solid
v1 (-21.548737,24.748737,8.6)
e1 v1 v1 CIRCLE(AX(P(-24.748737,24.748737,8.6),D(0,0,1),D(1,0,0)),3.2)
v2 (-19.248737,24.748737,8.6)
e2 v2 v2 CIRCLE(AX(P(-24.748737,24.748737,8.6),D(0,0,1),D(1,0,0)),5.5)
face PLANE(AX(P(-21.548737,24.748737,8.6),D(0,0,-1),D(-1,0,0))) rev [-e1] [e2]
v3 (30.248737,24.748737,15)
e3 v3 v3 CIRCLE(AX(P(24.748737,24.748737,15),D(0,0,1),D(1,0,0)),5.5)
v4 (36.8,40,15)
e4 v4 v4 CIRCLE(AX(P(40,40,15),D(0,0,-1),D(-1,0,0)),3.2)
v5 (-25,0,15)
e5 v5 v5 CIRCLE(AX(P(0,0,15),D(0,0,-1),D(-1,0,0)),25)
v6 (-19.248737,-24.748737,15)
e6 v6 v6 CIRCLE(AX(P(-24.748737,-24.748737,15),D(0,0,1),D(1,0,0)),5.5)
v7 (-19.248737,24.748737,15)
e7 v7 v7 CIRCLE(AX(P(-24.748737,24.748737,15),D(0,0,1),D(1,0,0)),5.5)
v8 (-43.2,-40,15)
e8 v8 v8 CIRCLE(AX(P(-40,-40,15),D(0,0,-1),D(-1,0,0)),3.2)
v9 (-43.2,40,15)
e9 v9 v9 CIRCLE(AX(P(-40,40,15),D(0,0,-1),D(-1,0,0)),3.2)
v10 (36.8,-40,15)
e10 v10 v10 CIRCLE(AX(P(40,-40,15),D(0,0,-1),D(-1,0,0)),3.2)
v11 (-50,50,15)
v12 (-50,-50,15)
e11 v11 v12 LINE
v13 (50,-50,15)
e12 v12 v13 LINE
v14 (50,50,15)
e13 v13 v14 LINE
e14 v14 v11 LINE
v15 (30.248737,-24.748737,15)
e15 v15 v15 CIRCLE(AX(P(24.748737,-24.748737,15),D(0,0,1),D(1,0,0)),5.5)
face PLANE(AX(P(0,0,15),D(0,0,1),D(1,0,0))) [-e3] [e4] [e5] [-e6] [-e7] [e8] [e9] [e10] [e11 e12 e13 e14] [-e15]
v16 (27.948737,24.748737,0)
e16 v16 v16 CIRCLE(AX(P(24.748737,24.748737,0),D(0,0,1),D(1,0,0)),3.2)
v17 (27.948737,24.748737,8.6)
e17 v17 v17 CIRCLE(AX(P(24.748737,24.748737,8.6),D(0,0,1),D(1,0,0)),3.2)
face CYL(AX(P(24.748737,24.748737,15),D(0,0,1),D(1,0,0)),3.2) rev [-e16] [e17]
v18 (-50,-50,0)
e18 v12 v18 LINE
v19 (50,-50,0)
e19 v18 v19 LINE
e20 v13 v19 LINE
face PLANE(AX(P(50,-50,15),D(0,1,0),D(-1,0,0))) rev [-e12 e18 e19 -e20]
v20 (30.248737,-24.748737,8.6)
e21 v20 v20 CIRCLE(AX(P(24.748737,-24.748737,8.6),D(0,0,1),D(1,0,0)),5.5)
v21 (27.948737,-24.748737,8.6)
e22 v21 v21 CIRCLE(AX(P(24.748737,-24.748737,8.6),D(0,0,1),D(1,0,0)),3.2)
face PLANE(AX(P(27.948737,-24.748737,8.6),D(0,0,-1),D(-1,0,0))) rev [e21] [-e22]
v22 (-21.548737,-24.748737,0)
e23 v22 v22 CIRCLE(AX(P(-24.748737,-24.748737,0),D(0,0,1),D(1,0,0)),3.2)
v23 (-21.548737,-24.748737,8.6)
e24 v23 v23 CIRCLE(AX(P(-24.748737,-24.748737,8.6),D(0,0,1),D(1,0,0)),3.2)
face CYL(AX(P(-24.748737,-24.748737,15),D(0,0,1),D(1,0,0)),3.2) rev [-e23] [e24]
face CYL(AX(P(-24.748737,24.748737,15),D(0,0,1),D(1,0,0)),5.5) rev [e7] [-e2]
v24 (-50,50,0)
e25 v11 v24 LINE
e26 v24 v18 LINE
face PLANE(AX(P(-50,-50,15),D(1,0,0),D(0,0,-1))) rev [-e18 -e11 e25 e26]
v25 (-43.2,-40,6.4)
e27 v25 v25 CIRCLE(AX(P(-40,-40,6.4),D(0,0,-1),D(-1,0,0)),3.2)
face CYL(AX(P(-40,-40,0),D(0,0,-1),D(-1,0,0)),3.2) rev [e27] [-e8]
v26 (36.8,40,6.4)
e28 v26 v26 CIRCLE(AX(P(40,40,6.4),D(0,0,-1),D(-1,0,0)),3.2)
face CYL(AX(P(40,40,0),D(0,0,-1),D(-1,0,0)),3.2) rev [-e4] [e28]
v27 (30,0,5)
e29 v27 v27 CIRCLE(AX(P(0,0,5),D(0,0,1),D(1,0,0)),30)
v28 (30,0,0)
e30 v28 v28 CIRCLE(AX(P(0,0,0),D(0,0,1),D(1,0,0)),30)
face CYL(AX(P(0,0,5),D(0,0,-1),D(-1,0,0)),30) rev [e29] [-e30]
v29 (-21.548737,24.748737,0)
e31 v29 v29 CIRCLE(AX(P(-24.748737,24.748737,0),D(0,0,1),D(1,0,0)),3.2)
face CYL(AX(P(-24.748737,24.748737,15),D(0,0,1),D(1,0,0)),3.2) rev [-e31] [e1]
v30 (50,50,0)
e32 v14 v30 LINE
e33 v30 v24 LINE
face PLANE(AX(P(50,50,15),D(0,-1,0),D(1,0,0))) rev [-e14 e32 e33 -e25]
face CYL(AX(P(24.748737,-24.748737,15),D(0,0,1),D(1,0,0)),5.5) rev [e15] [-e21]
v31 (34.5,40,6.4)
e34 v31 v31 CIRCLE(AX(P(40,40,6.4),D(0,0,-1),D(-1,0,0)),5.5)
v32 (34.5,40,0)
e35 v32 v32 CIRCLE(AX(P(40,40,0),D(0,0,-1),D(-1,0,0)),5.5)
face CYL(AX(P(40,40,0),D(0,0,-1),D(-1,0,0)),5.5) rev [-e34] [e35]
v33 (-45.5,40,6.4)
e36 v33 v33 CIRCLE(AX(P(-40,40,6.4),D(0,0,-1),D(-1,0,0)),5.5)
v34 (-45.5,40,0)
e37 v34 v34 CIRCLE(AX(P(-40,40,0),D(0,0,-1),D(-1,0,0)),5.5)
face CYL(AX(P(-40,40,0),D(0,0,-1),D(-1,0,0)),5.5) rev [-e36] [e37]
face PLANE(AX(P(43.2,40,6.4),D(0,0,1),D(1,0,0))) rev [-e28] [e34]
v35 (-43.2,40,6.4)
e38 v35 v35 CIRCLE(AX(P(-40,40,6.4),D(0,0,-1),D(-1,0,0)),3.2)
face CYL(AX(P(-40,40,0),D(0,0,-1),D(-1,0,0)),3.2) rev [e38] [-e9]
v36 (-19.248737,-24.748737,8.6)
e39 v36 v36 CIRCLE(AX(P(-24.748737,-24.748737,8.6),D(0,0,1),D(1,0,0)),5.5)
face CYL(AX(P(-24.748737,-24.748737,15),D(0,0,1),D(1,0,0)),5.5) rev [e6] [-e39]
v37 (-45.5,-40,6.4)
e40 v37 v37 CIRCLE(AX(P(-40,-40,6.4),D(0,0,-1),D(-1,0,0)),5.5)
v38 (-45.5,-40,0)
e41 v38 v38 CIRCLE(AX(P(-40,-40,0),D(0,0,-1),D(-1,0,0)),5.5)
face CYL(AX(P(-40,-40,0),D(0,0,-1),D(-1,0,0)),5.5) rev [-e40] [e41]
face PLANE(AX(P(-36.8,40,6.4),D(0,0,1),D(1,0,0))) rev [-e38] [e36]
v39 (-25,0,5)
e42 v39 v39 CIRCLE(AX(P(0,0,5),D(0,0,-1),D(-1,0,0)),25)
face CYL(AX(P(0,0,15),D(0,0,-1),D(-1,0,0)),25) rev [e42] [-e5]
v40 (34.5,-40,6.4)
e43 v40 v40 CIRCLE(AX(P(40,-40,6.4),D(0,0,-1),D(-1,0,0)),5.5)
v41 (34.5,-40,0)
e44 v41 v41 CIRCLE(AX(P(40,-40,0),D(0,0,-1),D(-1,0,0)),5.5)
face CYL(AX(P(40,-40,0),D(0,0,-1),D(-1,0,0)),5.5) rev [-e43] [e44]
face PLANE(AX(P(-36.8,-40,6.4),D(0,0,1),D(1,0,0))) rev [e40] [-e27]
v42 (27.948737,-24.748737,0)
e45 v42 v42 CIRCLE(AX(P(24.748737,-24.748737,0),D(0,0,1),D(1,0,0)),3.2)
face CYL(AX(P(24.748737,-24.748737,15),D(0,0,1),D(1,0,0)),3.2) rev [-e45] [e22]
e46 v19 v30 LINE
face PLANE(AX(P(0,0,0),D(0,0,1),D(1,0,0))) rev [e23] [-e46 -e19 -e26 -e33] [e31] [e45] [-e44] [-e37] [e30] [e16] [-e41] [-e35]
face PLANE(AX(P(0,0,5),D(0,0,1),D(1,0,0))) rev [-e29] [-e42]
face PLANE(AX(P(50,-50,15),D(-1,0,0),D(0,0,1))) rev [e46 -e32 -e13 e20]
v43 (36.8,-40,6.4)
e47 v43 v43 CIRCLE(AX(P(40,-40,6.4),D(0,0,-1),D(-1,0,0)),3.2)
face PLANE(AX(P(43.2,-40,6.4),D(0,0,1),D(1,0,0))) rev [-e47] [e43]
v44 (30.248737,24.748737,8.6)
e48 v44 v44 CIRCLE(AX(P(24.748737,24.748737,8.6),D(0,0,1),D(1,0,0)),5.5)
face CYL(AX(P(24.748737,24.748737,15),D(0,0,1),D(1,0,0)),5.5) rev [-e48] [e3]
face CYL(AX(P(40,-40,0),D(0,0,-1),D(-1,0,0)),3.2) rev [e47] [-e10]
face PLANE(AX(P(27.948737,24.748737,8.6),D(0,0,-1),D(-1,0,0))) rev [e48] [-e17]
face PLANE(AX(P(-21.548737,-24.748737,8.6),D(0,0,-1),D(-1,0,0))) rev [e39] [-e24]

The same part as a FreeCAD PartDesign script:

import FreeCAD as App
import Part
import Sketcher

V = App.Vector
Q = App.Units.Quantity

doc = App.newDocument("Part")
body = doc.addObject("PartDesign::Body", "Body")

# Sketch on XY plane
sketch1 = body.newObject("Sketcher::SketchObject", "Sketch")
sketch1.AttachmentSupport = (doc.getObject("XY_Plane"), [""])
sketch1.MapMode = "FlatFace"
sketch1.addGeometry([
    Part.LineSegment(V(-50, 50, 0), V(-50, -50, 0)),
    Part.LineSegment(V(-50, -50, 0), V(50, -50, 0)),
    Part.LineSegment(V(50, -50, 0), V(50, 50, 0)),
    Part.LineSegment(V(50, 50, 0), V(-50, 50, 0)),
], False)
sketch1.addConstraint([
    Sketcher.Constraint("Coincident", 0, 2, 1, 1),
    Sketcher.Constraint("Coincident", 1, 2, 2, 1),
    Sketcher.Constraint("Coincident", 2, 2, 3, 1),
    Sketcher.Constraint("Coincident", 3, 2, 0, 1),
    Sketcher.Constraint("Vertical", 0),
    Sketcher.Constraint("Horizontal", 1),
    Sketcher.Constraint("Vertical", 2),
    Sketcher.Constraint("Horizontal", 3),
    Sketcher.Constraint("Symmetric", 0, 2, 2, 2, -1, 1),
    Sketcher.Constraint("Equal", 3, 0),
    Sketcher.Constraint("DistanceX", 1, 1, 1, 2, Q("100 mm")),
])
pad1 = body.newObject("PartDesign::Pad", "Pad")
pad1.Profile = sketch1
pad1.Length = 15

# Sketch on XY plane
sketch2 = body.newObject("Sketcher::SketchObject", "Sketch001")
sketch2.AttachmentSupport = (doc.getObject("XY_Plane"), [""])
sketch2.MapMode = "FlatFace"
sketch2.addGeometry([
    Part.Circle(V(-40, 40, 0), V(0, 0, 1), 3.2),
    Part.Circle(V(40, 40, 0), V(0, 0, 1), 3.2),
    Part.Circle(V(40, -40, 0), V(0, 0, 1), 3.2),
    Part.Circle(V(-40, -40, 0), V(0, 0, 1), 3.2),
], False)
sketch2.addConstraint([
    Sketcher.Constraint("Equal", 0, 1),
    Sketcher.Constraint("Equal", 1, 2),
    Sketcher.Constraint("Equal", 2, 3),
    Sketcher.Constraint("Symmetric", 0, 3, 2, 3, -1, 1),
    Sketcher.Constraint("Symmetric", 1, 3, 3, 3, -1, 1),
    Sketcher.Constraint("Symmetric", 0, 3, 1, 3, -2),
    Sketcher.Constraint("Diameter", 0, Q("6.4 mm")),
    Sketcher.Constraint("DistanceX", 0, 3, -1, 1, Q("40 mm")),
    Sketcher.Constraint("DistanceY", -1, 1, 0, 3, Q("40 mm")),
])
doc.recompute()
hole = body.newObject("PartDesign::Hole", "Hole")
hole.Profile = sketch2
hole.ThreadType = "None"
hole.Diameter = 6.4
hole.DepthType = "ThroughAll"
hole.HoleCutType = "Counterbore"
hole.HoleCutDiameter = 11
hole.HoleCutDepth = 6.4
hole.Reversed = True

# Sketch on XY plane
sketch3 = body.newObject("Sketcher::SketchObject", "Sketch002")
sketch3.AttachmentSupport = (doc.getObject("XY_Plane"), [""])
sketch3.MapMode = "FlatFace"
sketch3.addGeometry(Part.Circle(V(0, 0, 0), V(0, 0, 1), 30), False)
sketch3.addConstraint([
    Sketcher.Constraint("Coincident", 0, 3, -1, 1),
    Sketcher.Constraint("Diameter", 0, Q("60 mm")),
])
pocket1 = body.newObject("PartDesign::Pocket", "Pocket")
pocket1.Profile = sketch3
pocket1.Length = 5
pocket1.Reversed = True

# Sketch on XY plane
sketch4 = body.newObject("Sketcher::SketchObject", "Sketch003")
sketch4.AttachmentSupport = (doc.getObject("XY_Plane"), [""])
sketch4.MapMode = "FlatFace"
sketch4.AttachmentOffset = App.Placement(V(0, 0, 15), App.Rotation())
sketch4.addGeometry([
    Part.Circle(V(-24.748737, 24.748737, 0), V(0, 0, 1), 3.2),
    Part.Circle(V(-24.748737, -24.748737, 0), V(0, 0, 1), 3.2),
    Part.Circle(V(24.748737, -24.748737, 0), V(0, 0, 1), 3.2),
    Part.Circle(V(24.748737, 24.748737, 0), V(0, 0, 1), 3.2),
], False)
sketch4.addConstraint([
    Sketcher.Constraint("Equal", 0, 1),
    Sketcher.Constraint("Equal", 1, 2),
    Sketcher.Constraint("Equal", 2, 3),
    Sketcher.Constraint("Symmetric", 0, 3, 2, 3, -1, 1),
    Sketcher.Constraint("Symmetric", 1, 3, 3, 3, -1, 1),
    Sketcher.Constraint("Symmetric", 1, 3, 2, 3, -2),
    Sketcher.Constraint("Diameter", 0, Q("6.4 mm")),
    Sketcher.Constraint("DistanceX", 0, 3, -1, 1, Q("24.748737 mm")),
    Sketcher.Constraint("DistanceY", -1, 1, 0, 3, Q("24.748737 mm")),
])
doc.recompute()
hole2 = body.newObject("PartDesign::Hole", "Hole001")
hole2.Profile = sketch4
hole2.ThreadType = "None"
hole2.Diameter = 6.4
hole2.DepthType = "ThroughAll"
hole2.HoleCutType = "Counterbore"
hole2.HoleCutDiameter = 11
hole2.HoleCutDepth = 6.4

# Sketch on XY plane
sketch5 = body.newObject("Sketcher::SketchObject", "Sketch004")
sketch5.AttachmentSupport = (doc.getObject("XY_Plane"), [""])
sketch5.MapMode = "FlatFace"
sketch5.AttachmentOffset = App.Placement(V(0, 0, 5), App.Rotation())
sketch5.addGeometry(Part.Circle(V(0, 0, 0), V(0, 0, 1), 25), False)
sketch5.addConstraint([
    Sketcher.Constraint("Coincident", 0, 3, -1, 1),
    Sketcher.Constraint("Diameter", 0, Q("50 mm")),
])
pocket2 = body.newObject("PartDesign::Pocket", "Pocket001")
pocket2.Profile = sketch5
pocket2.Type = "ThroughAll"
pocket2.Reversed = True

doc.recompute()
